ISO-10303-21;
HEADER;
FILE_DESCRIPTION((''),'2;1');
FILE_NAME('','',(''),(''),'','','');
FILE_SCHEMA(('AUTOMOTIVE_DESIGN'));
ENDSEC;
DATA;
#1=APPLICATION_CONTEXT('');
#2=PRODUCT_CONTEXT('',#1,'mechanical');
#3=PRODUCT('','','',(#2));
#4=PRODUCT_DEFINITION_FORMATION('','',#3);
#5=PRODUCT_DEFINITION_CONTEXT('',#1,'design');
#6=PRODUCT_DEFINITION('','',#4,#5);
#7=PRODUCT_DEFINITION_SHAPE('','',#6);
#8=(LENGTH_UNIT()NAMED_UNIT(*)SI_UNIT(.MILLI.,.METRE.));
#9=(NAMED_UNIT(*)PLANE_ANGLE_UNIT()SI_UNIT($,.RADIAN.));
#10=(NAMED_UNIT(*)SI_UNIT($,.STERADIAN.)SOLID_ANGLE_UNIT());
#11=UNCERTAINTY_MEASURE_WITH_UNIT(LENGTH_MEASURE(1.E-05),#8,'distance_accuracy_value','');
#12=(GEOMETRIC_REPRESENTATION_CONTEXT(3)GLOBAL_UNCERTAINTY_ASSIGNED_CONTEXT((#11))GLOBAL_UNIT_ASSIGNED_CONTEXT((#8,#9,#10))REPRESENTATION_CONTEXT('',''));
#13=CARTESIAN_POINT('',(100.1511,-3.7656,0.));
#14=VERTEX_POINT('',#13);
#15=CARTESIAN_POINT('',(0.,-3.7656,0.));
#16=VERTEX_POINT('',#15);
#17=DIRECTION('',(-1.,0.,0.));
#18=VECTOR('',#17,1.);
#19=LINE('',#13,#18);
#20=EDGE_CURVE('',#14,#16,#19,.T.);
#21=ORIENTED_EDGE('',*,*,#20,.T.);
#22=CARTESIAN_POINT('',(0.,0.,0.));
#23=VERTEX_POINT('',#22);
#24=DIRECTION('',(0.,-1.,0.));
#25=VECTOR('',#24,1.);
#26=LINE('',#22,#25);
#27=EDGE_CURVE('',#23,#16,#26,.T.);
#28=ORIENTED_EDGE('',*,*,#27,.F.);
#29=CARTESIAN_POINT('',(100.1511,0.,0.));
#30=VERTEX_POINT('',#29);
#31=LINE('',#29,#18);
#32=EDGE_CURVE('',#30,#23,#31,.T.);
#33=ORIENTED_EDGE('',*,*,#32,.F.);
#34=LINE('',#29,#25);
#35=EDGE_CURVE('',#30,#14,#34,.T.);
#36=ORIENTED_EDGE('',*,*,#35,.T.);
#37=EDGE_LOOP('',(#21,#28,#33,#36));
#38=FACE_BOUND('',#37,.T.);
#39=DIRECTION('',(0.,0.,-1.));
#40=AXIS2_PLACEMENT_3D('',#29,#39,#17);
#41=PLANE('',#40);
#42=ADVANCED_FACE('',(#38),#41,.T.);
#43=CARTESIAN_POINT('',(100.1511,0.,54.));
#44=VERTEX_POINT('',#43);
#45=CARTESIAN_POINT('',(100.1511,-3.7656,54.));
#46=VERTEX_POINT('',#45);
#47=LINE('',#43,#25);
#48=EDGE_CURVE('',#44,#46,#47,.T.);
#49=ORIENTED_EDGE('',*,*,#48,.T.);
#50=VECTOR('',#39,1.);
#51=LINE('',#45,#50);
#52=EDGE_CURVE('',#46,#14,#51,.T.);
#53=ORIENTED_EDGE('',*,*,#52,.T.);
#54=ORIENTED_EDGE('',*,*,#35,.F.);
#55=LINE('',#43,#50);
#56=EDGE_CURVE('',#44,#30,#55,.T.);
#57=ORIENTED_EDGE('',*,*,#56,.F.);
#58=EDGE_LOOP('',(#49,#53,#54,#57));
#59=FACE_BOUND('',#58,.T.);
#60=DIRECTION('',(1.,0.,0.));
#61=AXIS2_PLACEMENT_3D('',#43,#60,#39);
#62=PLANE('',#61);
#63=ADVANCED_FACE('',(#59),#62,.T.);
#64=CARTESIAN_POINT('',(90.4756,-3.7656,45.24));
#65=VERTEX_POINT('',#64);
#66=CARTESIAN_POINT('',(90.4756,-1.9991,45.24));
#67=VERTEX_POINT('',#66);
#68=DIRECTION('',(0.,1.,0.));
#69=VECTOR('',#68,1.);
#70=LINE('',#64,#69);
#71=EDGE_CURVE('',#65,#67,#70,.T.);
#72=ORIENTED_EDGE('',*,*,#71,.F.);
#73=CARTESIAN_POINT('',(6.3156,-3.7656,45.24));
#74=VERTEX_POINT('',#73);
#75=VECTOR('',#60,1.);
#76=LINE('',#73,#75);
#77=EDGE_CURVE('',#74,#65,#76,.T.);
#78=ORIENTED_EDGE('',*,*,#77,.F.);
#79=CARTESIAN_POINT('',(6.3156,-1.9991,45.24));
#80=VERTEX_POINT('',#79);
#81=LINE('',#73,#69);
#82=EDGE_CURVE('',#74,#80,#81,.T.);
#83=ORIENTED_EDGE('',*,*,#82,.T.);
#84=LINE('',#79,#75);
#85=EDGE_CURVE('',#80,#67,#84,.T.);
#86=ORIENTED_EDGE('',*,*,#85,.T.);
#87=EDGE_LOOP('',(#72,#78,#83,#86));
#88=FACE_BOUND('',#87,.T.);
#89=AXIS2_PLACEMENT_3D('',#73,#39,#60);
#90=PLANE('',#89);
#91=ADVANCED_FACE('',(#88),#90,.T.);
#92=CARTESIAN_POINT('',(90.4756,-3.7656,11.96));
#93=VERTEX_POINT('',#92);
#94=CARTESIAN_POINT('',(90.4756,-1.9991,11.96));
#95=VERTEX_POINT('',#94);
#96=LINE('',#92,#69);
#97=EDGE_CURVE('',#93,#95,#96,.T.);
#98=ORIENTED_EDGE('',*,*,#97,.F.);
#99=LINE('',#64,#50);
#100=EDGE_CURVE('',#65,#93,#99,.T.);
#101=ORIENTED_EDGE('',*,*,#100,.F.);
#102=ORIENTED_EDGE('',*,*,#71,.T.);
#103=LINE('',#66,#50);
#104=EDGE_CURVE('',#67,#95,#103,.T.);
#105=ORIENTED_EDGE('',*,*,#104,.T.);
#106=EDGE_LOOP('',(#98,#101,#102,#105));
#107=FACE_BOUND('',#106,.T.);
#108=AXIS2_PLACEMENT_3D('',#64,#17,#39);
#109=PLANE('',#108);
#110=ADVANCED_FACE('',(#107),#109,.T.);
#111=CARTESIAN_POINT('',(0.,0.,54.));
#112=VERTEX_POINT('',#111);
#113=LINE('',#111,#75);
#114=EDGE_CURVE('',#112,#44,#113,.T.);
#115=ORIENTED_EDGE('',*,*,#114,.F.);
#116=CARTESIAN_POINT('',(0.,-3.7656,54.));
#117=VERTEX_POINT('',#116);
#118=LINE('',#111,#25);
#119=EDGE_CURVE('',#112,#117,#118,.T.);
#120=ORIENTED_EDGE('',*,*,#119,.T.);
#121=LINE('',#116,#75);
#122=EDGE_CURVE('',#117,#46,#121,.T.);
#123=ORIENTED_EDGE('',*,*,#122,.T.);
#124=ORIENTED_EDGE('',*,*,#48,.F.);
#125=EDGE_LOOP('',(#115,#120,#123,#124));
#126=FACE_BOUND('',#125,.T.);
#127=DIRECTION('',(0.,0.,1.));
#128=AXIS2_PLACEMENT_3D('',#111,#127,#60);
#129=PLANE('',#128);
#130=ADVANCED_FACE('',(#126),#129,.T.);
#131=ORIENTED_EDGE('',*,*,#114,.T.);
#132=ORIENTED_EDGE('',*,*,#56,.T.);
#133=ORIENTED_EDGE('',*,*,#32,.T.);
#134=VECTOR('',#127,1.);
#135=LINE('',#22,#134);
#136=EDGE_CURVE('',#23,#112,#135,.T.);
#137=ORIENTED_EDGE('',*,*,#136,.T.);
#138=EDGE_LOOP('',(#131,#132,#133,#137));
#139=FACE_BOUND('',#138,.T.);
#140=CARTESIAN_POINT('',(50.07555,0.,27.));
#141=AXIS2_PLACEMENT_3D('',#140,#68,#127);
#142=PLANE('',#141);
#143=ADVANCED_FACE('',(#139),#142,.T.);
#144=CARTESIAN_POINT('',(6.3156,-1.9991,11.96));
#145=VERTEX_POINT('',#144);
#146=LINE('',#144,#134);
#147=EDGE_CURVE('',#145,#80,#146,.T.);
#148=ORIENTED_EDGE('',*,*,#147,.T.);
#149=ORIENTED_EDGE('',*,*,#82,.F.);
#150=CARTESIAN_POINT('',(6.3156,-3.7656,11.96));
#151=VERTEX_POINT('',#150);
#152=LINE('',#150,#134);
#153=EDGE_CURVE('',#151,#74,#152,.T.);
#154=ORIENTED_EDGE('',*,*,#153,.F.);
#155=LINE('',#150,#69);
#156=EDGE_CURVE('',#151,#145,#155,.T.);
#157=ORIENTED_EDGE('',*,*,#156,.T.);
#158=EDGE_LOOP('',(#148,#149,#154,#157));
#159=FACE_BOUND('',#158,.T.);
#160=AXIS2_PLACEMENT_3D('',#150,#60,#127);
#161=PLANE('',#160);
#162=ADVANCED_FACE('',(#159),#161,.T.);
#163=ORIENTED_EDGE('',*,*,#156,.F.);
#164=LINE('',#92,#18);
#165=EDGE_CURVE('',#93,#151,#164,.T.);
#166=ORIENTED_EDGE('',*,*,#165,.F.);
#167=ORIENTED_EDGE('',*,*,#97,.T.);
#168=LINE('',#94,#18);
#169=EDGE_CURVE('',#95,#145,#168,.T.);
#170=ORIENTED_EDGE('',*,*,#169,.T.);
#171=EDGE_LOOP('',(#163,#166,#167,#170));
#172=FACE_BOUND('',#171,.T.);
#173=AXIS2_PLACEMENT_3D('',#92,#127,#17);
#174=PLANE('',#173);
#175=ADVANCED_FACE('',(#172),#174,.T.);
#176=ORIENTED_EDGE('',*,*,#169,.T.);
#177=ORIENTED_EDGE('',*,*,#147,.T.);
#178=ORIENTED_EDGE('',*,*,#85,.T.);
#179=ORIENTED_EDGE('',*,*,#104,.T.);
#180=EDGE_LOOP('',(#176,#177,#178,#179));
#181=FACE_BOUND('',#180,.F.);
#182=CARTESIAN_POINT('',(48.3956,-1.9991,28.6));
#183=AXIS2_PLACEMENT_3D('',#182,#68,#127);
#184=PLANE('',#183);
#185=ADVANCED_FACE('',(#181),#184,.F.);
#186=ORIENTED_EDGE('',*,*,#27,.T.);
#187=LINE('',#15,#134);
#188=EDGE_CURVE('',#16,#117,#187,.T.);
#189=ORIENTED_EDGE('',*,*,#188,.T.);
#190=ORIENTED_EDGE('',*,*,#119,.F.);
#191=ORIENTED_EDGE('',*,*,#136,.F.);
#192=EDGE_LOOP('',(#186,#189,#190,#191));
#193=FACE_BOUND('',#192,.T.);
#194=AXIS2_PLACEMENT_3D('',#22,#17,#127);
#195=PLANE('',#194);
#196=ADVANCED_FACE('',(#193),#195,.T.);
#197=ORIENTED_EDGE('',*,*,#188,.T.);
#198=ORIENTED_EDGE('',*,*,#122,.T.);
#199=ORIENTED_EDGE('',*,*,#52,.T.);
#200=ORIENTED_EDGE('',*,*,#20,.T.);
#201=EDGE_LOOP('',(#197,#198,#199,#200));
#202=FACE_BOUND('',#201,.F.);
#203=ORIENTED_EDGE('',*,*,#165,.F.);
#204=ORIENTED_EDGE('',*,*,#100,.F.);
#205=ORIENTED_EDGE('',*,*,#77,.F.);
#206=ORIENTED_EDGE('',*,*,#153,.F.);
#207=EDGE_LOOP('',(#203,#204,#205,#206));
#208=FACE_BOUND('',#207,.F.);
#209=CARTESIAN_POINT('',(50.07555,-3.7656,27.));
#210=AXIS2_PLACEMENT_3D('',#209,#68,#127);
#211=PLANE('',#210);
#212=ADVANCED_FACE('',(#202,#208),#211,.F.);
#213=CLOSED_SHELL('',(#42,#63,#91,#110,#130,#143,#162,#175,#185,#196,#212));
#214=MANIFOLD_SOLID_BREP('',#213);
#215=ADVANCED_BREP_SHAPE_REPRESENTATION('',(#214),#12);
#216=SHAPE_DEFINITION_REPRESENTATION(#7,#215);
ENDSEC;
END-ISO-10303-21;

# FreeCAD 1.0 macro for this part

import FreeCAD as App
import Part
import Sketcher
from FreeCAD import Vector


def add_polygon(sketch, points):
    """Adds a closed chain of lines whose ends are joined by coincident constraints."""
    first, n = sketch.GeometryCount, len(points)
    for a, b in zip(points, points[1:] + points[:1]):
        sketch.addGeometry(Part.LineSegment(App.Vector(*a, 0), App.Vector(*b, 0)), False)
    for i in range(n):
        sketch.addConstraint(Sketcher.Constraint("Coincident", first + i, 2, first + (i + 1) % n, 1))

doc = App.newDocument("Part")
body = doc.addObject("PartDesign::Body", "Body")

# Sketch on XZ plane
sketch1 = body.newObject("Sketcher::SketchObject", "Sketch")
sketch1.AttachmentSupport = (doc.getObject("XZ_Plane"), [""])
sketch1.MapMode = "FlatFace"
add_polygon(sketch1, [(100.1511, 0), (100.1511, 54), (0, 54), (0, 0)])  # lines 0-3
sketch1.addConstraint(Sketcher.Constraint("Vertical", 0))
sketch1.addConstraint(Sketcher.Constraint("Horizontal", 1))
sketch1.addConstraint(Sketcher.Constraint("Vertical", 2))
sketch1.addConstraint(Sketcher.Constraint("Horizontal", 3))
sketch1.addConstraint(Sketcher.Constraint("Coincident", 2, 2, -1, 1))
sketch1.addConstraint(Sketcher.Constraint("DistanceY", 0, 1, 0, 2, 54.0))
sketch1.addConstraint(Sketcher.Constraint("DistanceX", 1, 2, 1, 1, 100.151))
pad1 = body.newObject("PartDesign::Pad", "Pad")
pad1.Profile = sketch1
pad1.Length = 3.7656

# Sketch on XZ plane
sketch2 = body.newObject("Sketcher::SketchObject", "Sketch001")
sketch2.AttachmentSupport = (doc.getObject("XZ_Plane"), [""])
sketch2.MapMode = "FlatFace"
sketch2.AttachmentOffset = App.Placement(Vector(0, 0, 3.7656), App.Rotation())
add_polygon(sketch2, [(6.3156, 11.96), (90.4756, 11.96), (90.4756, 45.24), (6.3156, 45.24)])  # lines 0-3
sketch2.addConstraint(Sketcher.Constraint("Horizontal", 0))
sketch2.addConstraint(Sketcher.Constraint("Vertical", 1))
sketch2.addConstraint(Sketcher.Constraint("Horizontal", 2))
sketch2.addConstraint(Sketcher.Constraint("Vertical", 3))
sketch2.addConstraint(Sketcher.Constraint("DistanceX", 0, 1, 0, 2, 84.16))
sketch2.addConstraint(Sketcher.Constraint("DistanceY", 1, 1, 1, 2, 33.28))
sketch2.addConstraint(Sketcher.Constraint("DistanceY", -1, 1, 0, 2, 11.96))
sketch2.addConstraint(Sketcher.Constraint("DistanceX", -1, 1, 0, 2, 90.4756))
pocket1 = body.newObject("PartDesign::Pocket", "Pocket")
pocket1.Profile = sketch2
pocket1.Length = 1.7665

doc.recompute()
